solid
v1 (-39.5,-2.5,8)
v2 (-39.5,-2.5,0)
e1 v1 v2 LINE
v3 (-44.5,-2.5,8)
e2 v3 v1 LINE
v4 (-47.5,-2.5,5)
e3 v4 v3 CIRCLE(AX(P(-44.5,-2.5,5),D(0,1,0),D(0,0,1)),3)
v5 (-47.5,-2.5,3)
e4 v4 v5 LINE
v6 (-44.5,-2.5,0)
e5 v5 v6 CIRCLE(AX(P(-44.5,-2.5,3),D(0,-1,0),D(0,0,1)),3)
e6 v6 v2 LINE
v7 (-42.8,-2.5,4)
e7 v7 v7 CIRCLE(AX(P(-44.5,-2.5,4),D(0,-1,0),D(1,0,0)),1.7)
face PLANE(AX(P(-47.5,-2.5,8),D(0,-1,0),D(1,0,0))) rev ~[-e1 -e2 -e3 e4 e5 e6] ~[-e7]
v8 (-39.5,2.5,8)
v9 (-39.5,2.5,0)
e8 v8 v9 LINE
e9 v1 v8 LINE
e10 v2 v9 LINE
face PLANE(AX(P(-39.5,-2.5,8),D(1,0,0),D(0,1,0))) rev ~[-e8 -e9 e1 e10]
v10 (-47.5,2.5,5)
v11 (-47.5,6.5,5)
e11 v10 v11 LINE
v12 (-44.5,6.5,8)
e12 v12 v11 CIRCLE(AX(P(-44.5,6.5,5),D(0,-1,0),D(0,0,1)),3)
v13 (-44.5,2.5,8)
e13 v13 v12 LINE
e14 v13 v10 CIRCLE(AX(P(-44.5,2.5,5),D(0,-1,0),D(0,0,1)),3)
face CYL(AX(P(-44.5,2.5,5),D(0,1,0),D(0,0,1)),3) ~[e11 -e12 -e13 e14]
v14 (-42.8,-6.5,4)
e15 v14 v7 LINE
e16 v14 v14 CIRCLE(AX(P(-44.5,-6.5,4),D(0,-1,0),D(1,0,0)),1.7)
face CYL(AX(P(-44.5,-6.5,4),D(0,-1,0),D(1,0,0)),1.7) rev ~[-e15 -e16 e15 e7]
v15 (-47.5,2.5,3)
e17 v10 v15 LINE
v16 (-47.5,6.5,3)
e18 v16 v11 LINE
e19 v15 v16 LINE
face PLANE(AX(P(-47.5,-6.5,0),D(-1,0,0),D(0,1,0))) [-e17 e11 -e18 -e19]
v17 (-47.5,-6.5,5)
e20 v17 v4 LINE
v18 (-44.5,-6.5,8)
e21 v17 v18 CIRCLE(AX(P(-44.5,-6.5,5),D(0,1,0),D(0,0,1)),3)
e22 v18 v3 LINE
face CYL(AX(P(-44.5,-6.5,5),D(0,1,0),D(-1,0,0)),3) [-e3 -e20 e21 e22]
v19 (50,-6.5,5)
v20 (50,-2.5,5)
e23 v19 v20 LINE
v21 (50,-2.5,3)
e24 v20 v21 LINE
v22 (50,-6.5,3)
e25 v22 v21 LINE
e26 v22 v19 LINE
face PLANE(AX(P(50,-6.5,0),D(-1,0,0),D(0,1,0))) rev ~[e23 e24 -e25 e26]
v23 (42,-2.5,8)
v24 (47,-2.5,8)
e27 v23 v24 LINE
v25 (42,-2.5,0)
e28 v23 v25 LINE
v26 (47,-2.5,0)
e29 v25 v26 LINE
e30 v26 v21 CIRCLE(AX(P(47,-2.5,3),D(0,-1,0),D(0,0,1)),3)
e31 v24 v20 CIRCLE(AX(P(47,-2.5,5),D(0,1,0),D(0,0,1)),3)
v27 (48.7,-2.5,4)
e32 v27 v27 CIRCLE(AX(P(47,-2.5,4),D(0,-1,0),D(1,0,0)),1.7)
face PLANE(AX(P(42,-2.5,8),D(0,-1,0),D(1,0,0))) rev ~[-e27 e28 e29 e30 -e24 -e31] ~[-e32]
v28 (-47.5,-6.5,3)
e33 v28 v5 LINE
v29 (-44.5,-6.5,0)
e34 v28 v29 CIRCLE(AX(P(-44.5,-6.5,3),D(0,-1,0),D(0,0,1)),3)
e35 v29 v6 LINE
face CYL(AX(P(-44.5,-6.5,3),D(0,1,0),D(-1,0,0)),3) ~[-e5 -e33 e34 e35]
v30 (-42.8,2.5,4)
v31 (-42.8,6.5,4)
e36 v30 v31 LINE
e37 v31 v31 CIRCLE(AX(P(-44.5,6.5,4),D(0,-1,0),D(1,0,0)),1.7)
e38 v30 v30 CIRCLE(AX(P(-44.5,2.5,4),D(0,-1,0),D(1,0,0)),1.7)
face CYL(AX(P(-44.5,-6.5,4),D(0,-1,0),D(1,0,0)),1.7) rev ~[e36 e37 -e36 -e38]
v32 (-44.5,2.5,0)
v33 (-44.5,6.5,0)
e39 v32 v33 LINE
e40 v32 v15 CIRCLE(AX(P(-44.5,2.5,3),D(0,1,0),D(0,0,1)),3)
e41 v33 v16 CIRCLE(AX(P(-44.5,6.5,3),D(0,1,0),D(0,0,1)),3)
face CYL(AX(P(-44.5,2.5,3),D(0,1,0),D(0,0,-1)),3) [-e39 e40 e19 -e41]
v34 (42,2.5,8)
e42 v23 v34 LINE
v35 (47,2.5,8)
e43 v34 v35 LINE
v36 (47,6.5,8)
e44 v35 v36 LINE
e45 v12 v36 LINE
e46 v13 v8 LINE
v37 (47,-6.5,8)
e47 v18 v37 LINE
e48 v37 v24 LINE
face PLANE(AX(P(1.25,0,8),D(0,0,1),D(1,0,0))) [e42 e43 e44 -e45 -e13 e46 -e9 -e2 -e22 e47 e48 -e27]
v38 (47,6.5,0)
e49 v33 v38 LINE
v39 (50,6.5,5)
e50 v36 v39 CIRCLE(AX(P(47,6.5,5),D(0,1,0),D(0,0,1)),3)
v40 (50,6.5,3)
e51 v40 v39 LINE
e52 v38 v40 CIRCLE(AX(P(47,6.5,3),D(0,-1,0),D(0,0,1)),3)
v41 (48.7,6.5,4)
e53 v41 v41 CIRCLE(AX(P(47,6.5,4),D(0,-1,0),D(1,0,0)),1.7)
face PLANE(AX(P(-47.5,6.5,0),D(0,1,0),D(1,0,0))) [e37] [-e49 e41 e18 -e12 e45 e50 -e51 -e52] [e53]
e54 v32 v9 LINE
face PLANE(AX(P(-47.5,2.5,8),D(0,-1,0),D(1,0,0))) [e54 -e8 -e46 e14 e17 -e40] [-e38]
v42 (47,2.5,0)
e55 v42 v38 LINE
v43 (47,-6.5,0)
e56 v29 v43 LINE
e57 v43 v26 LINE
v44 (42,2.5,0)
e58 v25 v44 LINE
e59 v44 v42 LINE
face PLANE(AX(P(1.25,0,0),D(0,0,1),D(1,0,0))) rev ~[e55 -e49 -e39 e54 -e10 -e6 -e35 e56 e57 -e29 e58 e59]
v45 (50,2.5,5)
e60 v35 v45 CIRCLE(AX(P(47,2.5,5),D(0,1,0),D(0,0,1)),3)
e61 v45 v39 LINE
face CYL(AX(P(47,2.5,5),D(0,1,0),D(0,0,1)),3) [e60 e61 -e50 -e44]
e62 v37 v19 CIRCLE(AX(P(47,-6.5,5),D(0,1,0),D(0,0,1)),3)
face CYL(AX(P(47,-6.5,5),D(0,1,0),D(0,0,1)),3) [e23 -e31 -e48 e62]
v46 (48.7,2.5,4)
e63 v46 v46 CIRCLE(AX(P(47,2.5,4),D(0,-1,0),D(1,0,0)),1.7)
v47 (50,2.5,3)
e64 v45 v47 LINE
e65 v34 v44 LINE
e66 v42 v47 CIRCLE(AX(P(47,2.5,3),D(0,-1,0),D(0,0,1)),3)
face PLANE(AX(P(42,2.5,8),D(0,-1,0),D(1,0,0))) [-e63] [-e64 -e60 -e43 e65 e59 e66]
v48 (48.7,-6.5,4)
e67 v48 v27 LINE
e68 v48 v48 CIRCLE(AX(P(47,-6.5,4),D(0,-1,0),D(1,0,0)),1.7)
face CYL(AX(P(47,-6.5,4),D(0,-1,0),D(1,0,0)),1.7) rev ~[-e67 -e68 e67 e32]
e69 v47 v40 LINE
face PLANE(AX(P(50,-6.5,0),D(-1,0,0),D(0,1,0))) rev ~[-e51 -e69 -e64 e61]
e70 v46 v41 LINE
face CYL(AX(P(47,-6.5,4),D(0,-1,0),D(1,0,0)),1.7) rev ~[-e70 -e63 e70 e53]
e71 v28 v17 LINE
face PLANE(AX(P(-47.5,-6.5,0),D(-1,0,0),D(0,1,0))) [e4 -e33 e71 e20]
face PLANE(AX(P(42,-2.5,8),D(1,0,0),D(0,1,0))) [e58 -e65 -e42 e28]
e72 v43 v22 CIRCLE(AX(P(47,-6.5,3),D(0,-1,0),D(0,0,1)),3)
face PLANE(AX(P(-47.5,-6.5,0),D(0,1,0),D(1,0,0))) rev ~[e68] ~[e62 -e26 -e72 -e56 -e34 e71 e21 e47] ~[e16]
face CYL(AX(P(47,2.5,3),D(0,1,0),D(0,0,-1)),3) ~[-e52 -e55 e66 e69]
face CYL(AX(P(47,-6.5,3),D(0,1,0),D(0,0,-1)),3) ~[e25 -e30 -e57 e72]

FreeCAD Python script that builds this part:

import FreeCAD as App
import Part
import Sketcher


def edges_at(feature, points):
    """Names of the edges that pass closest to the given points."""
    edges = feature.Shape.Edges
    near = lambda p: min(range(len(edges)), key=lambda i: edges[i].distToShape(Part.Vertex(*p))[0])
    return sorted({f"Edge{near(p) + 1}" for p in points})


def add_polygon(sketch, points):
    """Adds a closed chain of lines whose ends are joined by coincident constraints."""
    first, n = sketch.GeometryCount, len(points)
    for a, b in zip(points, points[1:] + points[:1]):
        sketch.addGeometry(Part.LineSegment(App.Vector(*a, 0), App.Vector(*b, 0)), False)
    for i in range(n):
        sketch.addConstraint(Sketcher.Constraint("Coincident", first + i, 2, first + (i + 1) % n, 1))

doc = App.newDocument("Part")
body = doc.addObject("PartDesign::Body", "Body")

# Sketch on XY plane
sketch1 = body.newObject("Sketcher::SketchObject", "Sketch")
sketch1.AttachmentSupport = (doc.getObject("XY_Plane"), [""])
sketch1.MapMode = "FlatFace"
add_polygon(sketch1, [(-48, 6), (-48, -6), (50, -6), (50, 6)])  # lines 0-3
sketch1.addConstraint([
    Sketcher.Constraint("Vertical", 0),
    Sketcher.Constraint("Horizontal", 1),
    Sketcher.Constraint("Vertical", 2),
    Sketcher.Constraint("Horizontal", 3),
    Sketcher.Constraint("DistanceY", 0, 2, 0, 1, 13.0),
    Sketcher.Constraint("DistanceX", 1, 1, 1, 2, 97.5),
    Sketcher.Constraint("DistanceX", -1, 1, 1, 2, 50.0),
    Sketcher.Constraint("DistanceY", 0, 2, -1, 1, 6.5),
])
pad1 = body.newObject("PartDesign::Pad", "Pad")
pad1.Profile = sketch1
pad1.Length = 8

# Sketch on XZ plane
sketch2 = body.newObject("Sketcher::SketchObject", "Sketch001")
sketch2.AttachmentSupport = (doc.getObject("XZ_Plane"), [""])
sketch2.MapMode = "FlatFace"
sketch2.AttachmentOffset = App.Placement(App.Vector(0, 0, 6.5), App.Rotation())
sketch2.addGeometry([
    Part.Circle(App.Vector(-44.5, 4, 0), App.Vector(0, 0, 1), 1.7),
    Part.Circle(App.Vector(47, 4, 0), App.Vector(0, 0, 1), 1.7),
], False)
sketch2.addConstraint([
    Sketcher.Constraint("Equal", 0, 1),
    Sketcher.Constraint("Horizontal", 0, 3, 1, 3),
    Sketcher.Constraint("Diameter", 0, 3.4),
    Sketcher.Constraint("DistanceY", -1, 1, 0, 3, 4.0),
    Sketcher.Constraint("DistanceX", -1, 1, 1, 3, 47.0),
    Sketcher.Constraint("DistanceX", 0, 3, -1, 1, 44.5),
])
pocket1 = body.newObject("PartDesign::Pocket", "Pocket")
pocket1.Profile = sketch2
pocket1.Length = 20

# Sketch on XY plane
sketch3 = body.newObject("Sketcher::SketchObject", "Sketch002")
sketch3.AttachmentSupport = (doc.getObject("XY_Plane"), [""])
sketch3.MapMode = "FlatFace"
sketch3.AttachmentOffset = App.Placement(App.Vector(0, 0, 8), App.Rotation())
add_polygon(sketch3, [(-48, 2), (-48, -2), (-40, -2), (-40, 2)])  # lines 0-3
add_polygon(sketch3, [(42, 2), (42, -2), (50, -2), (50, 2)])  # lines 4-7
sketch3.addConstraint([
    Sketcher.Constraint("Vertical", 0),
    Sketcher.Constraint("Horizontal", 1),
    Sketcher.Constraint("Vertical", 2),
    Sketcher.Constraint("Horizontal", 3),
    Sketcher.Constraint("Vertical", 4),
    Sketcher.Constraint("Horizontal", 5),
    Sketcher.Constraint("Vertical", 6),
    Sketcher.Constraint("Horizontal", 7),
    Sketcher.Constraint("Horizontal", 1, 2, 4, 2),
    Sketcher.Constraint("Horizontal", 3, 2, 6, 2),
    Sketcher.Constraint("Equal", 3, 5),
    Sketcher.Constraint("DistanceX", 1, 1, 1, 2, 8.0),
    Sketcher.Constraint("DistanceY", 0, 2, 0, 1, 5.0),
    Sketcher.Constraint("DistanceX", -1, 1, 4, 2, 42.0),
    Sketcher.Constraint("DistanceX", 0, 2, -1, 1, 47.5),
    Sketcher.Constraint("DistanceY", 0, 2, -1, 1, 2.5),
])
pocket2 = body.newObject("PartDesign::Pocket", "Pocket001")
pocket2.Profile = sketch3
pocket2.Length = 20
doc.recompute()

fillet = body.newObject("PartDesign::Fillet", "Fillet")
fillet.Base = (pocket2, edges_at(pocket2, [
    (50, 4.5, 8),
    (50, -4.5, 8),
    (50, -4.5, 0),
    (50, 4.5, 0),
    (-47.5, -4.5, 8),
    (-47.5, -4.5, 0),
    (-47.5, 4.5, 0),
    (-47.5, 4.5, 8),
]))
fillet.Radius = 3

doc.recompute()
